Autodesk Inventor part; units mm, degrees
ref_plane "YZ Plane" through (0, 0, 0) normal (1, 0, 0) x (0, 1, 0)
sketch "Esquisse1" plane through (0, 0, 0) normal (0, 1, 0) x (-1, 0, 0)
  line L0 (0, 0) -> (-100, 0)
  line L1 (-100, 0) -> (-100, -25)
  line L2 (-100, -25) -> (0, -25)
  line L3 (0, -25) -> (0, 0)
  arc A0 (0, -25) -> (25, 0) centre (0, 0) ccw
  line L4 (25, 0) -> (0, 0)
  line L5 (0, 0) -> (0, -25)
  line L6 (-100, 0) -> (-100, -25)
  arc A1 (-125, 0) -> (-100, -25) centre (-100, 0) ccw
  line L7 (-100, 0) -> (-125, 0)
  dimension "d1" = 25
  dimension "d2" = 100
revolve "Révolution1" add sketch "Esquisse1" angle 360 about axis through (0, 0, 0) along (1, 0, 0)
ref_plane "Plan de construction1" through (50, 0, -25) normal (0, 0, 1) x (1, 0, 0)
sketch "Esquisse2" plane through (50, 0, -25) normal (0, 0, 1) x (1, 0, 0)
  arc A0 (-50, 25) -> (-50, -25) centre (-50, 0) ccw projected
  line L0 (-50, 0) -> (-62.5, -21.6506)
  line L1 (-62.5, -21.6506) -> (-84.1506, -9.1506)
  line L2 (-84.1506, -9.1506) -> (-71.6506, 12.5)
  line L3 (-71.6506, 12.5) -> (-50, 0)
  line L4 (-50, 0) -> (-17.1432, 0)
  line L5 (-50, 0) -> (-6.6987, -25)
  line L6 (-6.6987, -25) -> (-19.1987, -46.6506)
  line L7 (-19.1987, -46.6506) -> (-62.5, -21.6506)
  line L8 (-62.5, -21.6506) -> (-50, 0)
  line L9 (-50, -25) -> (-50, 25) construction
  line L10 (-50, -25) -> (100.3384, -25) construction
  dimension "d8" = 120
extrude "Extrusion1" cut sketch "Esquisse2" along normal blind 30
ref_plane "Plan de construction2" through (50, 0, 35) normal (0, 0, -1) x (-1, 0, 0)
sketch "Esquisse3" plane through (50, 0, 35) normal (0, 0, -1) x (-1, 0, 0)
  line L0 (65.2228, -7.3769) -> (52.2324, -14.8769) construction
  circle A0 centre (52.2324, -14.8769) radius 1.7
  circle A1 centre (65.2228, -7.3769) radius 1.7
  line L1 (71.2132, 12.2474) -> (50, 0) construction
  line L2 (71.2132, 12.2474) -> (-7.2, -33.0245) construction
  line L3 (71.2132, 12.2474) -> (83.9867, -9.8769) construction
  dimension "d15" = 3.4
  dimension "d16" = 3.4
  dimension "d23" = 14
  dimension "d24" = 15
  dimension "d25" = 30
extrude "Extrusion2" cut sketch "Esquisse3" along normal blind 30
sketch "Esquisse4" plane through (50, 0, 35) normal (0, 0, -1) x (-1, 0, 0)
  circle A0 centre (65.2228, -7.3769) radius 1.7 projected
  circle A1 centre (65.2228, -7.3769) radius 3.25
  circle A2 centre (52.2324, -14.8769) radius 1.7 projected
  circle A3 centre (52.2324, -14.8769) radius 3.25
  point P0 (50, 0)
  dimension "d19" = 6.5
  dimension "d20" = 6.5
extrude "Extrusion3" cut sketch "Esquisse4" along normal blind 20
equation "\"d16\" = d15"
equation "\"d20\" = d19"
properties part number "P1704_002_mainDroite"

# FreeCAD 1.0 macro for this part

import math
import FreeCAD as App
import Part
import Sketcher
Q = App.Units.Quantity


def add_polygon(sketch, points):
    """Adds a closed chain of lines whose ends are joined by coincident constraints."""
    first, n = sketch.GeometryCount, len(points)
    for a, b in zip(points, points[1:] + points[:1]):
        sketch.addGeometry(Part.LineSegment(App.Vector(*a, 0), App.Vector(*b, 0)), False)
    for i in range(n):
        sketch.addConstraint(Sketcher.Constraint("Coincident", first + i, 2, first + (i + 1) % n, 1))

doc = App.newDocument("Part")
body = doc.addObject("PartDesign::Body", "Body")

# Sketch on XZ plane
sketch1 = doc.addObject("Sketcher::SketchObject", "Sketch")
body.addObject(sketch1)
sketch1.AttachmentSupport = (doc.XZ_Plane, [""])
sketch1.MapMode = "FlatFace"
sketch1.addGeometry([
    Part.LineSegment(App.Vector(100, -25, 0), App.Vector(0, -25, 0)),
    Part.ArcOfCircle(Part.Circle(App.Vector(0, 0, 0), App.Vector(0, 0, 1), 25), math.radians(180), math.radians(270)),
    Part.LineSegment(App.Vector(-25, 0, 0), App.Vector(125, 0, 0)),
    Part.ArcOfCircle(Part.Circle(App.Vector(100, 0, 0), App.Vector(0, 0, 1), 25), math.radians(-90), math.radians(0)),
], False)
sketch1.addConstraint([
    Sketcher.Constraint("Tangent", 0, 2, 1, 2),
    Sketcher.Constraint("Coincident", 1, 1, 2, 1),
    Sketcher.Constraint("Coincident", 2, 2, 3, 2),
    Sketcher.Constraint("Tangent", 3, 1, 0, 1),
    Sketcher.Constraint("Horizontal", 0),
    Sketcher.Constraint("Horizontal", 2),
    Sketcher.Constraint("Coincident", 1, 3, -1, 1),
    Sketcher.Constraint("Equal", 1, 3),
    Sketcher.Constraint("PointOnObject", 1, 1, -1),
    Sketcher.Constraint("Radius", 1, Q("25 mm")),
    Sketcher.Constraint("DistanceX", 0, 2, 0, 1, Q("100 mm")),
])
revolution = doc.addObject("PartDesign::Revolution", "Revolution")
body.addObject(revolution)
revolution.Profile = sketch1
revolution.ReferenceAxis = (sketch1, ["H_Axis"])
revolution.Angle = 360

# Sketch on XY plane
sketch2 = doc.addObject("Sketcher::SketchObject", "Sketch001")
body.addObject(sketch2)
sketch2.AttachmentSupport = (doc.XY_Plane, [""])
sketch2.MapMode = "FlatFace"
sketch2.AttachmentOffset = App.Placement(App.Vector(0, 0, -25), App.Rotation())
add_polygon(sketch2, [(0, 0), (-22, 12), (-34, -9), (-12, -22), (31, -47), (43, -25)])  # lines 0-5
sketch2.addConstraint([
    Sketcher.Constraint("Coincident", 5, 2, -1, 1),
    Sketcher.Constraint("Perpendicular", 0, 1),
    Sketcher.Constraint("Perpendicular", 1, 2),
    Sketcher.Constraint("Parallel", 2, 3),
    Sketcher.Constraint("Perpendicular", 3, 4),
    Sketcher.Constraint("Perpendicular", 4, 5),
    Sketcher.Constraint("Equal", 0, 1),
    Sketcher.Constraint("Equal", 1, 2),
    Sketcher.Constraint("Angle", 1, Q("-120 deg")),
    Sketcher.Constraint("Distance", 0, Q("25 mm")),
    Sketcher.Constraint("Distance", 3, Q("50 mm")),
])
pocket1 = doc.addObject("PartDesign::Pocket", "Pocket")
body.addObject(pocket1)
pocket1.Profile = sketch2
pocket1.Length = 30
pocket1.Reversed = True

# Sketch on XY plane
sketch3 = doc.addObject("Sketcher::SketchObject", "Sketch002")
body.addObject(sketch3)
sketch3.AttachmentSupport = (doc.XY_Plane, [""])
sketch3.MapMode = "FlatFace"
sketch3.AttachmentOffset = App.Placement(App.Vector(0, 0, 35), App.Rotation())
sketch3.addGeometry([
    Part.Circle(App.Vector(-2.2, -14.9, 0), App.Vector(0, 0, 1), 1.7),
    Part.Circle(App.Vector(-15.2, -7.4, 0), App.Vector(0, 0, 1), 1.7),
], False)
sketch3.addConstraint([
    Sketcher.Constraint("Equal", 0, 1),
    Sketcher.Constraint("Diameter", 0, Q("3.4 mm")),
    Sketcher.Constraint("DistanceY", 0, 3, 1, 3, Q("7.5 mm")),
    Sketcher.Constraint("DistanceY", 0, 3, -1, 1, Q("14.877 mm")),
    Sketcher.Constraint("DistanceX", 0, 3, -1, 1, Q("2.2324 mm")),
    Sketcher.Constraint("DistanceX", 1, 3, -1, 1, Q("15.2228 mm")),
])
pocket2 = doc.addObject("PartDesign::Pocket", "Pocket001")
body.addObject(pocket2)
pocket2.Profile = sketch3
pocket2.Length = 30

# Sketch on XY plane
sketch4 = doc.addObject("Sketcher::SketchObject", "Sketch003")
body.addObject(sketch4)
sketch4.AttachmentSupport = (doc.XY_Plane, [""])
sketch4.MapMode = "FlatFace"
sketch4.AttachmentOffset = App.Placement(App.Vector(0, 0, 35), App.Rotation())
sketch4.addGeometry([
    Part.Circle(App.Vector(-15.2, -7.4, 0), App.Vector(0, 0, 1), 3.2),
    Part.Circle(App.Vector(-15.2, -7.4, 0), App.Vector(0, 0, 1), 1.7),
    Part.Circle(App.Vector(-2.2, -14.9, 0), App.Vector(0, 0, 1), 3.2),
    Part.Circle(App.Vector(-2.2, -14.9, 0), App.Vector(0, 0, 1), 1.7),
], False)
sketch4.addConstraint([
    Sketcher.Constraint("Coincident", 1, 3, 0, 3),
    Sketcher.Constraint("Coincident", 3, 3, 2, 3),
    Sketcher.Constraint("Equal", 0, 2),
    Sketcher.Constraint("Equal", 1, 3),
    Sketcher.Constraint("Diameter", 0, Q("6.5 mm")),
    Sketcher.Constraint("Diameter", 1, Q("3.4 mm")),
    Sketcher.Constraint("DistanceY", 2, 3, 0, 3, Q("7.5 mm")),
    Sketcher.Constraint("DistanceY", 0, 3, -1, 1, Q("7.377 mm")),
    Sketcher.Constraint("DistanceX", 0, 3, -1, 1, Q("15.2228 mm")),
    Sketcher.Constraint("DistanceX", 2, 3, -1, 1, Q("2.2324 mm")),
])
pocket3 = doc.addObject("PartDesign::Pocket", "Pocket002")
body.addObject(pocket3)
pocket3.Profile = sketch4
pocket3.Length = 20

doc.recompute()
